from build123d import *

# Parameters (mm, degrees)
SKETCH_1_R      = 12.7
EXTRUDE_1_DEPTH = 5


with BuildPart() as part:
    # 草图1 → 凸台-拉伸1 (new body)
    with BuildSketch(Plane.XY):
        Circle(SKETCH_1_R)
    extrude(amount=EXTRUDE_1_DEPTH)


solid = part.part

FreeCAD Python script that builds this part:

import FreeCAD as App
import Part
import Sketcher
from FreeCAD import Vector
Q = App.Units.Quantity

doc = App.newDocument("Part")
body = doc.addObject("PartDesign::Body", "Body")

# Sketch on XY plane
sketch1 = body.newObject("Sketcher::SketchObject", "Sketch")
sketch1.AttachmentSupport = (doc.getObject("XY_Plane"), [""])
sketch1.MapMode = "FlatFace"
sketch1.addGeometry(Part.Circle(Vector(0, 0, 0), Vector(0, 0, 1), 13), False)
sketch1.addConstraint(Sketcher.Constraint("Coincident", 0, 3, -1, 1))
sketch1.addConstraint(Sketcher.Constraint("Diameter", 0, Q("25.4 mm")))
pad1 = body.newObject("PartDesign::Pad", "Pad")
pad1.Profile = sketch1
pad1.Length = 5

doc.recompute()
